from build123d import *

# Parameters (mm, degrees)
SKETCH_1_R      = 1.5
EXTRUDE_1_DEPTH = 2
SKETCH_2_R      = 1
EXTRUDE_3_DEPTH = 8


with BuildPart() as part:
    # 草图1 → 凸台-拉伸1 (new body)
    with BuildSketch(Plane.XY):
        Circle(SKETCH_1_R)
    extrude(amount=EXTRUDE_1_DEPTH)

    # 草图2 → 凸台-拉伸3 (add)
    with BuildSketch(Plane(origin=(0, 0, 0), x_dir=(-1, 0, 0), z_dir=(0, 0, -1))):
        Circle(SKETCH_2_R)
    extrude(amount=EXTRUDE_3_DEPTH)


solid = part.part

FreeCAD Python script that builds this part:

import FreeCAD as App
import Part
import Sketcher
Q = App.Units.Quantity

doc = App.newDocument("Part")
body = doc.addObject("PartDesign::Body", "Body")

# Sketch on XY plane
sketch1 = doc.addObject("Sketcher::SketchObject", "Sketch")
body.addObject(sketch1)
sketch1.AttachmentSupport = (doc.XY_Plane, [""])
sketch1.MapMode = "FlatFace"
sketch1.addGeometry(Part.Circle(App.Vector(0, 0, 0), App.Vector(0, 0, 1), 1.5), False)
sketch1.addConstraint(Sketcher.Constraint("Coincident", 0, 3, -1, 1))
sketch1.addConstraint(Sketcher.Constraint("Diameter", 0, Q("3 mm")))
pad1 = doc.addObject("PartDesign::Pad", "Pad")
body.addObject(pad1)
pad1.Profile = sketch1
pad1.Length = 2

# Sketch on XY plane
sketch2 = doc.addObject("Sketcher::SketchObject", "Sketch001")
body.addObject(sketch2)
sketch2.AttachmentSupport = (doc.XY_Plane, [""])
sketch2.MapMode = "FlatFace"
sketch2.addGeometry(Part.Circle(App.Vector(0, 0, 0), App.Vector(0, 0, 1), 1), False)
sketch2.addConstraint(Sketcher.Constraint("Coincident", 0, 3, -1, 1))
sketch2.addConstraint(Sketcher.Constraint("Diameter", 0, Q("2 mm")))
pad2 = doc.addObject("PartDesign::Pad", "Pad001")
body.addObject(pad2)
pad2.Profile = sketch2
pad2.Length = 8
pad2.Reversed = True

doc.recompute()
